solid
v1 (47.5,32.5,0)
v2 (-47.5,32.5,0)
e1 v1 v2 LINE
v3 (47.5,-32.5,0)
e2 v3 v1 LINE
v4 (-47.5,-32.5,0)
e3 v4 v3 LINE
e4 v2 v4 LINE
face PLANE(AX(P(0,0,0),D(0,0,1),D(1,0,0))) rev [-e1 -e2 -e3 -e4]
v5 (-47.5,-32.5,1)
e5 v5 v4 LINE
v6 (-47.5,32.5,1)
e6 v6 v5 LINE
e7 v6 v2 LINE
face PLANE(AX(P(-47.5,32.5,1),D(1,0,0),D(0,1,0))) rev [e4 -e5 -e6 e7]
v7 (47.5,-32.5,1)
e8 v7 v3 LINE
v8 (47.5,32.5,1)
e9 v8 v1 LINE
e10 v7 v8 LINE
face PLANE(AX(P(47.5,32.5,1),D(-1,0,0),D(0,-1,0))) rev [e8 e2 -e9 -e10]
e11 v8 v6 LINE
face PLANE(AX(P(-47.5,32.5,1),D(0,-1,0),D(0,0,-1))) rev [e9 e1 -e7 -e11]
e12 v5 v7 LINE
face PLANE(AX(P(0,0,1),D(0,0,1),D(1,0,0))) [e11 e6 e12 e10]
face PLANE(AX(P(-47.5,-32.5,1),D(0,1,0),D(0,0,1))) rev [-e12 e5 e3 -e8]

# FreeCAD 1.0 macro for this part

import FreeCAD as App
import Part
import Sketcher
from FreeCAD import Vector

doc = App.newDocument("Part")
params = doc.addObject("Spreadsheet::Sheet", "Params")
for row, (alias, value) in enumerate([
    ("sketch1_width", "95 mm"),
    ("sketch1_height", "65 mm"),
    ("pad1_length", "1 mm"),
], start=1):
    params.set(f"A{row}", alias)
    params.set(f"B{row}", "=" + value)
    params.setAlias(f"B{row}", alias)

body = doc.addObject("PartDesign::Body", "Body")

sketch1 = body.newObject("Sketcher::SketchObject", "Sketch")
sketch1.AttachmentSupport = (doc.getObject("XY_Plane"), [""])
sketch1.MapMode = "FlatFace"
sketch1.addGeometry([
    Part.LineSegment(Vector(-48, 32, 0), Vector(-48, -32, 0)),
    Part.LineSegment(Vector(-48, -32, 0), Vector(48, -32, 0)),
    Part.LineSegment(Vector(48, -32, 0), Vector(48, 32, 0)),
    Part.LineSegment(Vector(48, 32, 0), Vector(-48, 32, 0)),
], False)
sketch1.addConstraint([
    Sketcher.Constraint("Coincident", 0, 2, 1, 1),
    Sketcher.Constraint("Coincident", 1, 2, 2, 1),
    Sketcher.Constraint("Coincident", 2, 2, 3, 1),
    Sketcher.Constraint("Coincident", 3, 2, 0, 1),
    Sketcher.Constraint("Vertical", 0),
    Sketcher.Constraint("Horizontal", 1),
    Sketcher.Constraint("Vertical", 2),
    Sketcher.Constraint("Horizontal", 3),
    Sketcher.Constraint("Symmetric", 0, 2, 2, 2, -1, 1),
    Sketcher.Constraint("DistanceX", 1, 1, 1, 2, 95.0),
    Sketcher.Constraint("DistanceY", 0, 2, 0, 1, 65.0),
])
sketch1.setExpression("Constraints[9]", "Params.sketch1_width")
sketch1.setExpression("Constraints[10]", "Params.sketch1_height")
pad1 = body.newObject("PartDesign::Pad", "Pad")
pad1.Profile = sketch1
pad1.setExpression("Length", "Params.pad1_length")

doc.recompute()
